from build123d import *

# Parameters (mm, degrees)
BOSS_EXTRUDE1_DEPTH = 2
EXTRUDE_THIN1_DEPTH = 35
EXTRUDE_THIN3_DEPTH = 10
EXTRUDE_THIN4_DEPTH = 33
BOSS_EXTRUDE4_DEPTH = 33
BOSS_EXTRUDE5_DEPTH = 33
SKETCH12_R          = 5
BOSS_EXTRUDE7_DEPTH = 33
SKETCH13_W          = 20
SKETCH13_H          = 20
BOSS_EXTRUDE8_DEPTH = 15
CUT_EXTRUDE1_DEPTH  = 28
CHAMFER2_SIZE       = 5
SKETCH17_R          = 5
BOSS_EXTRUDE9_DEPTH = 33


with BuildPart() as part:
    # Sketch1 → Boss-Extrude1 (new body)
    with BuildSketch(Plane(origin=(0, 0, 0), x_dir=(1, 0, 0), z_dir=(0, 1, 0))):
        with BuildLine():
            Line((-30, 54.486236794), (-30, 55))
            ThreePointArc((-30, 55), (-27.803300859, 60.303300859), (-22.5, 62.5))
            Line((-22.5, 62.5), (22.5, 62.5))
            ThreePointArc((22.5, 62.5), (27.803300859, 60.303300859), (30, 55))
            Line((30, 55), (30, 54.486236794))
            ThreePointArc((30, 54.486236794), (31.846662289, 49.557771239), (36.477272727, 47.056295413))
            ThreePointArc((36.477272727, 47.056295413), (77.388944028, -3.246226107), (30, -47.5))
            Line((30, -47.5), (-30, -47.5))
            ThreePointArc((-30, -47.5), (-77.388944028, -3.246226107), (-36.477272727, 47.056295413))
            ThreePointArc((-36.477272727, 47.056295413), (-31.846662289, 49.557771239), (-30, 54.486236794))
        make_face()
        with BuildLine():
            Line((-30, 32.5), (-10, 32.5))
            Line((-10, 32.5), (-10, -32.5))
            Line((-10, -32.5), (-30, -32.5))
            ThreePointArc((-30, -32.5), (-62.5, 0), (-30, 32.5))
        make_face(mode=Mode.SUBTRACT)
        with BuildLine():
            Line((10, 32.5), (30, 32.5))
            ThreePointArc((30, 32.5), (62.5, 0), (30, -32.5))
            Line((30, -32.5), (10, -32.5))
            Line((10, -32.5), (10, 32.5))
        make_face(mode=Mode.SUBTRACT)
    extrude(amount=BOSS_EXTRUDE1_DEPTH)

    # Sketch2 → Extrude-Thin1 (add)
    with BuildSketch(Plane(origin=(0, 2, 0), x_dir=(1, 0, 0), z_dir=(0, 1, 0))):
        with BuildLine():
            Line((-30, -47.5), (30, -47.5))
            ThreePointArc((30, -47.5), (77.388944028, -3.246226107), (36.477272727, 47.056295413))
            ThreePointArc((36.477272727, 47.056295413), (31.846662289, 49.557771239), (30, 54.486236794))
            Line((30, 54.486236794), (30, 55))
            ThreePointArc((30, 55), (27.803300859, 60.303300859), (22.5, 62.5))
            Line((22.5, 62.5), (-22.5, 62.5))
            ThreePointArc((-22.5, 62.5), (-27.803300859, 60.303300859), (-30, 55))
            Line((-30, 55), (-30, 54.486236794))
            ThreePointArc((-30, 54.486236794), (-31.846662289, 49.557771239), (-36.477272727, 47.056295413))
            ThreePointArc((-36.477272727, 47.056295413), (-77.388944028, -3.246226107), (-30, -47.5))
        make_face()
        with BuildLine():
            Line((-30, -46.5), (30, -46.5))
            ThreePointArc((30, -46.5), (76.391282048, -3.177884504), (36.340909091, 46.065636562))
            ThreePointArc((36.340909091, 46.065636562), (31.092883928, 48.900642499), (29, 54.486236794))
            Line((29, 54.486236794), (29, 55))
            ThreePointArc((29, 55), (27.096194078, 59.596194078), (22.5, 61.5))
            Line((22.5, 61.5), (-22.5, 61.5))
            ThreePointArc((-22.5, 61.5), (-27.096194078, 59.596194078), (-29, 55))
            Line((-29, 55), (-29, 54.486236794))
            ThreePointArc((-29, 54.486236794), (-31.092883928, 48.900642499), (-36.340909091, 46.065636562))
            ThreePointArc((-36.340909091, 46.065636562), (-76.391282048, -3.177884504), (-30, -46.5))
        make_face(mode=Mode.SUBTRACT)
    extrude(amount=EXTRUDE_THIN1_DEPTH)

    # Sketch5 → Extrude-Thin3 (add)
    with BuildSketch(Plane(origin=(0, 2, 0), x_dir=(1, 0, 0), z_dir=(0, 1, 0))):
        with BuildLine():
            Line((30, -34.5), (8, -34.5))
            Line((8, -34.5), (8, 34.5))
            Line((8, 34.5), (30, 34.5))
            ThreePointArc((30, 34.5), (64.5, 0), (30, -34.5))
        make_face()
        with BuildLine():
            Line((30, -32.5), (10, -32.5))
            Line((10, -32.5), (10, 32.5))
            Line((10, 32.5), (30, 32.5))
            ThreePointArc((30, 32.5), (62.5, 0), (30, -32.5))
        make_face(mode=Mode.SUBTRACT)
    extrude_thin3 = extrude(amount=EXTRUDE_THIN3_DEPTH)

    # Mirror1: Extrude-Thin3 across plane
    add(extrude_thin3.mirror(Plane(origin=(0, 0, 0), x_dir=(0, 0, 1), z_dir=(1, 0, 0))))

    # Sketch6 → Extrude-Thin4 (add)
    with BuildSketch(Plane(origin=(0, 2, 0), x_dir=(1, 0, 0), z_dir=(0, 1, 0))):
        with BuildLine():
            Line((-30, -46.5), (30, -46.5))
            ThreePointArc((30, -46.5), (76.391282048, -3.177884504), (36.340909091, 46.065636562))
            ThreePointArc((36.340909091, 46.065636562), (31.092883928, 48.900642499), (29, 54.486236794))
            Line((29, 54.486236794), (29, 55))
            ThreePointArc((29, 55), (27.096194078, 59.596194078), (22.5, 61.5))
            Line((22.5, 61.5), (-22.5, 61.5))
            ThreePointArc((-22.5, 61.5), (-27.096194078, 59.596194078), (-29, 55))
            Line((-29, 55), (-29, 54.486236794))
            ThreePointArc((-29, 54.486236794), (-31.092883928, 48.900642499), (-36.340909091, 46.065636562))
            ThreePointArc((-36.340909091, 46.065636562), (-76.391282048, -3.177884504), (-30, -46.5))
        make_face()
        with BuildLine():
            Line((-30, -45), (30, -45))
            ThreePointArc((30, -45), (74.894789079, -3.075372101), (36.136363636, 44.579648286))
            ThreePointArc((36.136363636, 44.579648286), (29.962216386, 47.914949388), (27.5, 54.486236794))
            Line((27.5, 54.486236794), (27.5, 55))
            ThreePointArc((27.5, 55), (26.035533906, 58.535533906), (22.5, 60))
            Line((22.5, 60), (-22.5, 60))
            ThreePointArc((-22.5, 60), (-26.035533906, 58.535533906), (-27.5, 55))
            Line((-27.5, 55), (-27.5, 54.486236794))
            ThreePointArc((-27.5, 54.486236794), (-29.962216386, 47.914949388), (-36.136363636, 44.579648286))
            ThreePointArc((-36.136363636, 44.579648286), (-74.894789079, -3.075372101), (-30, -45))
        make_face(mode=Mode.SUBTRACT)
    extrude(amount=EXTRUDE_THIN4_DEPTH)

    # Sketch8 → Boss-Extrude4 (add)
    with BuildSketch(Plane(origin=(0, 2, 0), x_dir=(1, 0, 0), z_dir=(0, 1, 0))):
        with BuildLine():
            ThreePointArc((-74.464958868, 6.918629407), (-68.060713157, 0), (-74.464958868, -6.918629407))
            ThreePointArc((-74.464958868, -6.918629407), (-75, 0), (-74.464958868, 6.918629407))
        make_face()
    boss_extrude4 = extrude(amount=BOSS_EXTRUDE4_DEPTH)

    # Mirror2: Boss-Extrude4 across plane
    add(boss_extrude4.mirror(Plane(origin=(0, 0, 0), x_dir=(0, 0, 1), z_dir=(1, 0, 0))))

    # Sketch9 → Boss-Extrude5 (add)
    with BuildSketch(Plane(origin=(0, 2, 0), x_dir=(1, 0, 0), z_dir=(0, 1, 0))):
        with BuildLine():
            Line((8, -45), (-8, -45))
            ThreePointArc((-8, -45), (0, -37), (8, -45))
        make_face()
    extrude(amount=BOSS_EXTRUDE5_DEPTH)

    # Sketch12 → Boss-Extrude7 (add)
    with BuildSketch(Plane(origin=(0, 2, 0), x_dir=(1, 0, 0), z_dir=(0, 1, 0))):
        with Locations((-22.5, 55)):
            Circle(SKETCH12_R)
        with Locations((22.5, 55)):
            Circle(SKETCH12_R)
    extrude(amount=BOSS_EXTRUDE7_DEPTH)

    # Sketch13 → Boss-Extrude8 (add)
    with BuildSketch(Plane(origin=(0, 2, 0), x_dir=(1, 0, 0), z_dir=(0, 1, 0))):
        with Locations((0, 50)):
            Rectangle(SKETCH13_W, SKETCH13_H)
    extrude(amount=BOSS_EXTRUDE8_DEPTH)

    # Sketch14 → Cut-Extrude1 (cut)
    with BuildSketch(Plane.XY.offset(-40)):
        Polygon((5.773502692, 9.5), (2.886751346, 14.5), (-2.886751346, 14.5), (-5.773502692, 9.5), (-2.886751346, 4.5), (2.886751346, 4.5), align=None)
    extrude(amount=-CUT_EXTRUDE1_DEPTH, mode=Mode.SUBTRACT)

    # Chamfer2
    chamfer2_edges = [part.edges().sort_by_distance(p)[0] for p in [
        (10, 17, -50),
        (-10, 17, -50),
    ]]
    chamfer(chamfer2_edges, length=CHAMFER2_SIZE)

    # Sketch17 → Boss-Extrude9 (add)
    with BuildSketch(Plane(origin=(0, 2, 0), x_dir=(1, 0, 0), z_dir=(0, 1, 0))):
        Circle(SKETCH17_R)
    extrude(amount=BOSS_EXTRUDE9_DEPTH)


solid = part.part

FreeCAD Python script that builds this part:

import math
import FreeCAD as App
import Part
import Sketcher

V = App.Vector
Q = App.Units.Quantity


def edges_at(feature, points):
    """Names of the edges that pass closest to the given points."""
    edges = feature.Shape.Edges
    near = lambda p: min(range(len(edges)), key=lambda i: edges[i].distToShape(Part.Vertex(*p))[0])
    return sorted({f"Edge{near(p) + 1}" for p in points})

doc = App.newDocument("Part")
params = doc.addObject("Spreadsheet::Sheet", "Params")
for row, (alias, value) in enumerate([
    ("sketch1_radius", "7.5 mm"),
    ("sketch1_radius2", "47.5 mm"),
    ("sketch1_radius3", "32.5 mm"),
    ("sketch1_width", "60 mm"),
    ("sketch1_width2", "20 mm"),
    ("pad1_length", "2 mm"),
    ("sketch2_radius", "47.5 mm"),
    ("sketch2_radius2", "7.5 mm"),
    ("sketch2_radius3", "46.5 mm"),
    ("sketch2_width", "60 mm"),
    ("pad2_length", "35 mm"),
    ("sketch3_radius", "34.5 mm"),
    ("sketch3_radius2", "32.5 mm"),
    ("sketch3_width", "22 mm"),
    ("sketch3_width2", "20 mm"),
    ("pad3_length", "10 mm"),
    ("sketch4_radius", "45 mm"),
    ("sketch4_radius2", "10 mm"),
    ("sketch4_radius3", "5 mm"),
    ("sketch4_radius4", "46.5 mm"),
    ("sketch4_width", "60 mm"),
    ("pad4_length", "33 mm"),
    ("sketch5_radius", "45 mm"),
    ("pad5_length", "33 mm"),
    ("sketch6_radius", "8 mm"),
    ("pad6_length", "33 mm"),
    ("sketch7_diameter", "10 mm"),
    ("pad7_length", "33 mm"),
    ("sketch8_width", "20 mm"),
    ("pad8_length", "15 mm"),
    ("pocket1_length", "28 mm"),
    ("chamfer_size", "5 mm"),
    ("sketch10_diameter", "10 mm"),
    ("pad9_length", "33 mm"),
], start=1):
    params.set(f"A{row}", alias)
    params.set(f"B{row}", "=" + value)
    params.setAlias(f"B{row}", alias)

body = doc.addObject("PartDesign::Body", "Body")

# Sketch on XZ plane
sketch1 = doc.addObject("Sketcher::SketchObject", "Sketch")
body.addObject(sketch1)
sketch1.AttachmentSupport = (doc.XZ_Plane, [""])
sketch1.MapMode = "FlatFace"
sketch1.addGeometry([
    Part.LineSegment(V(-30, -55, 0), V(-30, -54.5, 0)),  # 0
    Part.ArcOfCircle(Part.Circle(V(-37.5, -54.5, 0), V(0, 0, 1), 7.5), math.radians(0), math.radians(82)),  # 1
    Part.ArcOfCircle(Part.Circle(V(-30, 0, 0), V(0, 0, 1), 47.5), math.radians(90), math.radians(262)),  # 2
    Part.LineSegment(V(-30, 47.5, 0), V(30, 47.5, 0)),  # 3
    Part.ArcOfCircle(Part.Circle(V(30, 0, 0), V(0, 0, 1), 47.5), math.radians(-82), math.radians(90)),  # 4
    Part.ArcOfCircle(Part.Circle(V(37.5, -54.5, 0), V(0, 0, 1), 7.5), math.radians(98), math.radians(180)),  # 5
    Part.LineSegment(V(30, -54.5, 0), V(30, -55, 0)),  # 6
    Part.ArcOfCircle(Part.Circle(V(22.5, -55, 0), V(0, 0, 1), 7.5), math.radians(-90), math.radians(0)),  # 7
    Part.LineSegment(V(22.5, -62.5, 0), V(-22.5, -62.5, 0)),  # 8
    Part.ArcOfCircle(Part.Circle(V(-22.5, -55, 0), V(0, 0, 1), 7.5), math.radians(180), math.radians(270)),  # 9
    Part.LineSegment(V(10, -32.5, 0), V(30, -32.5, 0)),  # 10
    Part.ArcOfCircle(Part.Circle(V(30, 0, 0), V(0, 0, 1), 32.5), math.radians(-90), math.radians(90)),  # 11
    Part.LineSegment(V(30, 32.5, 0), V(10, 32.5, 0)),  # 12
    Part.LineSegment(V(10, 32.5, 0), V(10, -32.5, 0)),  # 13
    Part.LineSegment(V(-30, -32.5, 0), V(-10, -32.5, 0)),  # 14
    Part.LineSegment(V(-10, -32.5, 0), V(-10, 32.5, 0)),  # 15
    Part.LineSegment(V(-10, 32.5, 0), V(-30, 32.5, 0)),  # 16
    Part.ArcOfCircle(Part.Circle(V(-30, 0, 0), V(0, 0, 1), 32.5), math.radians(90), math.radians(270)),  # 17
], False)
sketch1.addConstraint([
    Sketcher.Constraint("Tangent", 0, 2, 1, 1),
    Sketcher.Constraint("Tangent", 1, 2, 2, 2),
    Sketcher.Constraint("Tangent", 2, 1, 3, 1),
    Sketcher.Constraint("Tangent", 3, 2, 4, 2),
    Sketcher.Constraint("Tangent", 4, 1, 5, 1),
    Sketcher.Constraint("Tangent", 5, 2, 6, 1),
    Sketcher.Constraint("Tangent", 6, 2, 7, 2),
    Sketcher.Constraint("Tangent", 7, 1, 8, 1),
    Sketcher.Constraint("Tangent", 8, 2, 9, 2),
    Sketcher.Constraint("Tangent", 9, 1, 0, 1),
    Sketcher.Constraint("Tangent", 10, 2, 11, 1),
    Sketcher.Constraint("Tangent", 11, 2, 12, 1),
    Sketcher.Constraint("Coincident", 12, 2, 13, 1),
    Sketcher.Constraint("Coincident", 13, 2, 10, 1),
    Sketcher.Constraint("Coincident", 14, 2, 15, 1),
    Sketcher.Constraint("Coincident", 15, 2, 16, 1),
    Sketcher.Constraint("Tangent", 16, 2, 17, 1),
    Sketcher.Constraint("Tangent", 17, 2, 14, 1),
    Sketcher.Constraint("Vertical", 0),
    Sketcher.Constraint("Horizontal", 3),
    Sketcher.Constraint("Vertical", 6),
    Sketcher.Constraint("Horizontal", 8),
    Sketcher.Constraint("Horizontal", 10),
    Sketcher.Constraint("Horizontal", 12),
    Sketcher.Constraint("Vertical", 13),
    Sketcher.Constraint("Horizontal", 14),
    Sketcher.Constraint("Vertical", 15),
    Sketcher.Constraint("Horizontal", 16),
    Sketcher.Constraint("Coincident", 11, 3, 4, 3),
    Sketcher.Constraint("Coincident", 17, 3, 2, 3),
    Sketcher.Constraint("Equal", 2, 4),
    Sketcher.Constraint("Equal", 1, 5),
    Sketcher.Constraint("Equal", 5, 7),
    Sketcher.Constraint("Equal", 7, 9),
    Sketcher.Constraint("Equal", 11, 17),
    Sketcher.Constraint("Symmetric", 2, 3, 4, 3, -1, 1),
    Sketcher.Constraint("Horizontal", 1, 3, 5, 3),
    Sketcher.Constraint("Vertical", 17, 3, 0, 2),
    Sketcher.Constraint("Equal", 12, 14),
    Sketcher.Constraint("Radius", 1, 7.5),
    Sketcher.Constraint("Radius", 2, 47.5),
    Sketcher.Constraint("Radius", 11, 32.5),
    Sketcher.Constraint("DistanceX", 3, 1, 3, 2, 60.0),
    Sketcher.Constraint("DistanceX", 10, 1, 10, 2, 20.0),
    Sketcher.Constraint("DistanceY", 7, 3, -1, 1, 55.0),
])
sketch1.setExpression("Constraints[39]", "Params.sketch1_radius")
sketch1.setExpression("Constraints[40]", "Params.sketch1_radius2")
sketch1.setExpression("Constraints[41]", "Params.sketch1_radius3")
sketch1.setExpression("Constraints[42]", "Params.sketch1_width")
sketch1.setExpression("Constraints[43]", "Params.sketch1_width2")
pad1 = doc.addObject("PartDesign::Pad", "Pad")
body.addObject(pad1)
pad1.Profile = sketch1
pad1.setExpression("Length", "Params.pad1_length")
pad1.Reversed = True

# Sketch on XZ plane
sketch2 = doc.addObject("Sketcher::SketchObject", "Sketch001")
body.addObject(sketch2)
sketch2.AttachmentSupport = (doc.XZ_Plane, [""])
sketch2.MapMode = "FlatFace"
sketch2.AttachmentOffset = App.Placement(V(0, 0, -2), App.Rotation())
sketch2.addGeometry([
    Part.LineSegment(V(-30, 47.5, 0), V(30, 47.5, 0)),  # 0
    Part.ArcOfCircle(Part.Circle(V(30, 0, 0), V(0, 0, 1), 47.5), math.radians(-82), math.radians(90)),  # 1
    Part.ArcOfCircle(Part.Circle(V(37.5, -54.5, 0), V(0, 0, 1), 7.5), math.radians(98), math.radians(180)),  # 2
    Part.LineSegment(V(30, -54.5, 0), V(30, -55, 0)),  # 3
    Part.ArcOfCircle(Part.Circle(V(22.5, -55, 0), V(0, 0, 1), 7.5), math.radians(-90), math.radians(0)),  # 4
    Part.LineSegment(V(22.5, -62.5, 0), V(-22.5, -62.5, 0)),  # 5
    Part.ArcOfCircle(Part.Circle(V(-22.5, -55, 0), V(0, 0, 1), 7.5), math.radians(180), math.radians(270)),  # 6
    Part.LineSegment(V(-30, -55, 0), V(-30, -54.5, 0)),  # 7
    Part.ArcOfCircle(Part.Circle(V(-37.5, -54.5, 0), V(0, 0, 1), 7.5), math.radians(0), math.radians(82)),  # 8
    Part.ArcOfCircle(Part.Circle(V(-30, 0, 0), V(0, 0, 1), 47.5), math.radians(90), math.radians(262)),  # 9
    Part.LineSegment(V(30, 46.5, 0), V(-30, 46.5, 0)),  # 10
    Part.ArcOfCircle(Part.Circle(V(-30, 0, 0), V(0, 0, 1), 46.5), math.radians(90), math.radians(262)),  # 11
    Part.ArcOfCircle(Part.Circle(V(-37.5, -54.5, 0), V(0, 0, 1), 8.5), math.radians(0), math.radians(82)),  # 12
    Part.LineSegment(V(-29, -54.5, 0), V(-29, -55, 0)),  # 13
    Part.ArcOfCircle(Part.Circle(V(-22.5, -55, 0), V(0, 0, 1), 6.5), math.radians(180), math.radians(270)),  # 14
    Part.LineSegment(V(-22.5, -61.5, 0), V(22.5, -61.5, 0)),  # 15
    Part.ArcOfCircle(Part.Circle(V(22.5, -55, 0), V(0, 0, 1), 6.5), math.radians(-90), math.radians(0)),  # 16
    Part.LineSegment(V(29, -55, 0), V(29, -54.5, 0)),  # 17
    Part.ArcOfCircle(Part.Circle(V(37.5, -54.5, 0), V(0, 0, 1), 8.5), math.radians(98), math.radians(180)),  # 18
    Part.ArcOfCircle(Part.Circle(V(30, 0, 0), V(0, 0, 1), 46.5), math.radians(-82), math.radians(90)),  # 19
], False)
sketch2.addConstraint([
    Sketcher.Constraint("Tangent", 0, 2, 1, 2),
    Sketcher.Constraint("Tangent", 1, 1, 2, 1),
    Sketcher.Constraint("Tangent", 2, 2, 3, 1),
    Sketcher.Constraint("Tangent", 3, 2, 4, 2),
    Sketcher.Constraint("Tangent", 4, 1, 5, 1),
    Sketcher.Constraint("Tangent", 5, 2, 6, 2),
    Sketcher.Constraint("Tangent", 6, 1, 7, 1),
    Sketcher.Constraint("Tangent", 7, 2, 8, 1),
    Sketcher.Constraint("Tangent", 8, 2, 9, 2),
    Sketcher.Constraint("Tangent", 9, 1, 0, 1),
    Sketcher.Constraint("Tangent", 10, 2, 11, 1),
    Sketcher.Constraint("Tangent", 11, 2, 12, 2),
    Sketcher.Constraint("Tangent", 12, 1, 13, 1),
    Sketcher.Constraint("Tangent", 13, 2, 14, 1),
    Sketcher.Constraint("Tangent", 14, 2, 15, 1),
    Sketcher.Constraint("Tangent", 15, 2, 16, 1),
    Sketcher.Constraint("Tangent", 16, 2, 17, 1),
    Sketcher.Constraint("Tangent", 17, 2, 18, 2),
    Sketcher.Constraint("Tangent", 18, 1, 19, 1),
    Sketcher.Constraint("Tangent", 19, 2, 10, 1),
    Sketcher.Constraint("Horizontal", 0),
    Sketcher.Constraint("Vertical", 3),
    Sketcher.Constraint("Horizontal", 5),
    Sketcher.Constraint("Vertical", 7),
    Sketcher.Constraint("Horizontal", 10),
    Sketcher.Constraint("Vertical", 13),
    Sketcher.Constraint("Horizontal", 15),
    Sketcher.Constraint("Vertical", 17),
    Sketcher.Constraint("Coincident", 11, 3, 9, 3),
    Sketcher.Constraint("Coincident", 12, 3, 8, 3),
    Sketcher.Constraint("Coincident", 14, 3, 6, 3),
    Sketcher.Constraint("Coincident", 16, 3, 4, 3),
    Sketcher.Constraint("Coincident", 18, 3, 2, 3),
    Sketcher.Constraint("Equal", 2, 4),
    Sketcher.Constraint("Equal", 4, 6),
    Sketcher.Constraint("Equal", 6, 8),
    Sketcher.Constraint("Equal", 1, 9),
    Sketcher.Constraint("Equal", 11, 19),
    Sketcher.Constraint("Symmetric", 1, 3, 9, 3, -1, 1),
    Sketcher.Constraint("Horizontal", 2, 3, 8, 3),
    Sketcher.Constraint("Vertical", 0, 2, 2, 2),
    Sketcher.Constraint("Radius", 1, 47.5),
    Sketcher.Constraint("Radius", 2, 7.5),
    Sketcher.Constraint("Radius", 11, 46.5),
    Sketcher.Constraint("DistanceX", 0, 1, 0, 2, 60.0),
    Sketcher.Constraint("DistanceY", 4, 3, -1, 1, 55.0),
])
sketch2.setExpression("Constraints[41]", "Params.sketch2_radius")
sketch2.setExpression("Constraints[42]", "Params.sketch2_radius2")
sketch2.setExpression("Constraints[43]", "Params.sketch2_radius3")
sketch2.setExpression("Constraints[44]", "Params.sketch2_width")
pad2 = doc.addObject("PartDesign::Pad", "Pad001")
body.addObject(pad2)
pad2.Profile = sketch2
pad2.setExpression("Length", "Params.pad2_length")
pad2.Reversed = True

# Sketch on XZ plane
sketch3 = doc.addObject("Sketcher::SketchObject", "Sketch002")
body.addObject(sketch3)
sketch3.AttachmentSupport = (doc.XZ_Plane, [""])
sketch3.MapMode = "FlatFace"
sketch3.AttachmentOffset = App.Placement(V(0, 0, -2), App.Rotation())
sketch3.addGeometry([
    Part.LineSegment(V(8, 34, 0), V(30, 34, 0)),  # 0
    Part.ArcOfCircle(Part.Circle(V(30, 0, 0), V(0, 0, 1), 34), math.radians(-90), math.radians(90)),  # 1
    Part.LineSegment(V(30, -34, 0), V(8, -34, 0)),  # 2
    Part.LineSegment(V(8, -34, 0), V(8, 34, 0)),  # 3
    Part.LineSegment(V(30, 32, 0), V(10, 32, 0)),  # 4
    Part.LineSegment(V(10, 32, 0), V(10, -32, 0)),  # 5
    Part.LineSegment(V(10, -32, 0), V(30, -32, 0)),  # 6
    Part.ArcOfCircle(Part.Circle(V(30, 0, 0), V(0, 0, 1), 32), math.radians(-90), math.radians(90)),  # 7
], False)
sketch3.addConstraint([
    Sketcher.Constraint("Tangent", 0, 2, 1, 2),
    Sketcher.Constraint("Tangent", 1, 1, 2, 1),
    Sketcher.Constraint("Coincident", 2, 2, 3, 1),
    Sketcher.Constraint("Coincident", 3, 2, 0, 1),
    Sketcher.Constraint("Coincident", 4, 2, 5, 1),
    Sketcher.Constraint("Coincident", 5, 2, 6, 1),
    Sketcher.Constraint("Tangent", 6, 2, 7, 1),
    Sketcher.Constraint("Tangent", 7, 2, 4, 1),
    Sketcher.Constraint("Horizontal", 0),
    Sketcher.Constraint("Horizontal", 2),
    Sketcher.Constraint("Vertical", 3),
    Sketcher.Constraint("Horizontal", 4),
    Sketcher.Constraint("Vertical", 5),
    Sketcher.Constraint("Horizontal", 6),
    Sketcher.Constraint("Coincident", 7, 3, 1, 3),
    Sketcher.Constraint("PointOnObject", 1, 3, -1),
    Sketcher.Constraint("Radius", 1, 34.5),
    Sketcher.Constraint("Radius", 7, 32.5),
    Sketcher.Constraint("DistanceX", 0, 1, 0, 2, 22.0),
    Sketcher.Constraint("DistanceX", 4, 2, 4, 1, 20.0),
    Sketcher.Constraint("DistanceX", -1, 1, 1, 3, 30.0),
])
sketch3.setExpression("Constraints[16]", "Params.sketch3_radius")
sketch3.setExpression("Constraints[17]", "Params.sketch3_radius2")
sketch3.setExpression("Constraints[18]", "Params.sketch3_width")
sketch3.setExpression("Constraints[19]", "Params.sketch3_width2")
pad3 = doc.addObject("PartDesign::Pad", "Pad002")
body.addObject(pad3)
pad3.Profile = sketch3
pad3.setExpression("Length", "Params.pad3_length")
pad3.Reversed = True
doc.recompute()

mirrored = doc.addObject("PartDesign::Mirrored", "Mirrored")
body.addObject(mirrored)
mirrored.Originals = [pad3]
mirrored.MirrorPlane = (doc.YZ_Plane, [""])
body.Tip = mirrored

# Sketch on XZ plane
sketch4 = doc.addObject("Sketcher::SketchObject", "Sketch003")
body.addObject(sketch4)
sketch4.AttachmentSupport = (doc.XZ_Plane, [""])
sketch4.MapMode = "FlatFace"
sketch4.AttachmentOffset = App.Placement(V(0, 0, -2), App.Rotation())
sketch4.addGeometry([
    Part.LineSegment(V(-30, 46.5, 0), V(30, 46.5, 0)),  # 0
    Part.ArcOfCircle(Part.Circle(V(30, 0, 0), V(0, 0, 1), 46.5), math.radians(-82), math.radians(90)),  # 1
    Part.ArcOfCircle(Part.Circle(V(37.5, -54.5, 0), V(0, 0, 1), 8.5), math.radians(98), math.radians(180)),  # 2
    Part.LineSegment(V(29, -54.5, 0), V(29, -55, 0)),  # 3
    Part.ArcOfCircle(Part.Circle(V(22.5, -55, 0), V(0, 0, 1), 6.5), math.radians(-90), math.radians(0)),  # 4
    Part.LineSegment(V(22.5, -61.5, 0), V(-22.5, -61.5, 0)),  # 5
    Part.ArcOfCircle(Part.Circle(V(-22.5, -55, 0), V(0, 0, 1), 6.5), math.radians(180), math.radians(270)),  # 6
    Part.LineSegment(V(-29, -55, 0), V(-29, -54.5, 0)),  # 7
    Part.ArcOfCircle(Part.Circle(V(-37.5, -54.5, 0), V(0, 0, 1), 8.5), math.radians(0), math.radians(82)),  # 8
    Part.ArcOfCircle(Part.Circle(V(-30, 0, 0), V(0, 0, 1), 46.5), math.radians(90), math.radians(262)),  # 9
    Part.LineSegment(V(30, 45, 0), V(-30, 45, 0)),  # 10
    Part.ArcOfCircle(Part.Circle(V(-30, 0, 0), V(0, 0, 1), 45), math.radians(90), math.radians(262)),  # 11
    Part.ArcOfCircle(Part.Circle(V(-37.5, -54.5, 0), V(0, 0, 1), 10), math.radians(0), math.radians(82)),  # 12
    Part.LineSegment(V(-27.5, -54.5, 0), V(-27.5, -55, 0)),  # 13
    Part.ArcOfCircle(Part.Circle(V(-22.5, -55, 0), V(0, 0, 1), 5), math.radians(180), math.radians(270)),  # 14
    Part.LineSegment(V(-22.5, -60, 0), V(22.5, -60, 0)),  # 15
    Part.ArcOfCircle(Part.Circle(V(22.5, -55, 0), V(0, 0, 1), 5), math.radians(-90), math.radians(0)),  # 16
    Part.LineSegment(V(27.5, -55, 0), V(27.5, -54.5, 0)),  # 17
    Part.ArcOfCircle(Part.Circle(V(37.5, -54.5, 0), V(0, 0, 1), 10), math.radians(98), math.radians(180)),  # 18
    Part.ArcOfCircle(Part.Circle(V(30, 0, 0), V(0, 0, 1), 45), math.radians(-82), math.radians(90)),  # 19
], False)
sketch4.addConstraint([
    Sketcher.Constraint("Tangent", 0, 2, 1, 2),
    Sketcher.Constraint("Tangent", 1, 1, 2, 1),
    Sketcher.Constraint("Tangent", 2, 2, 3, 1),
    Sketcher.Constraint("Tangent", 3, 2, 4, 2),
    Sketcher.Constraint("Tangent", 4, 1, 5, 1),
    Sketcher.Constraint("Tangent", 5, 2, 6, 2),
    Sketcher.Constraint("Tangent", 6, 1, 7, 1),
    Sketcher.Constraint("Tangent", 7, 2, 8, 1),
    Sketcher.Constraint("Tangent", 8, 2, 9, 2),
    Sketcher.Constraint("Tangent", 9, 1, 0, 1),
    Sketcher.Constraint("Tangent", 10, 2, 11, 1),
    Sketcher.Constraint("Tangent", 11, 2, 12, 2),
    Sketcher.Constraint("Tangent", 12, 1, 13, 1),
    Sketcher.Constraint("Tangent", 13, 2, 14, 1),
    Sketcher.Constraint("Tangent", 14, 2, 15, 1),
    Sketcher.Constraint("Tangent", 15, 2, 16, 1),
    Sketcher.Constraint("Tangent", 16, 2, 17, 1),
    Sketcher.Constraint("Tangent", 17, 2, 18, 2),
    Sketcher.Constraint("Tangent", 18, 1, 19, 1),
    Sketcher.Constraint("Tangent", 19, 2, 10, 1),
    Sketcher.Constraint("Horizontal", 0),
    Sketcher.Constraint("Vertical", 3),
    Sketcher.Constraint("Horizontal", 5),
    Sketcher.Constraint("Vertical", 7),
    Sketcher.Constraint("Horizontal", 10),
    Sketcher.Constraint("Vertical", 13),
    Sketcher.Constraint("Horizontal", 15),
    Sketcher.Constraint("Vertical", 17),
    Sketcher.Constraint("Coincident", 11, 3, 9, 3),
    Sketcher.Constraint("Coincident", 12, 3, 8, 3),
    Sketcher.Constraint("Coincident", 14, 3, 6, 3),
    Sketcher.Constraint("Coincident", 16, 3, 4, 3),
    Sketcher.Constraint("Coincident", 18, 3, 2, 3),
    Sketcher.Constraint("Equal", 4, 6),
    Sketcher.Constraint("Equal", 2, 8),
    Sketcher.Constraint("Equal", 1, 9),
    Sketcher.Constraint("Equal", 11, 19),
    Sketcher.Constraint("Symmetric", 1, 3, 9, 3, -1, 1),
    Sketcher.Constraint("Horizontal", 2, 3, 8, 3),
    Sketcher.Constraint("Radius", 11, 45.0),
    Sketcher.Constraint("Radius", 12, 10.0),
    Sketcher.Constraint("Radius", 14, 5.0),
    Sketcher.Constraint("Radius", 1, 46.5),
    Sketcher.Constraint("DistanceX", 0, 1, 0, 2, 60.0),
    Sketcher.Constraint("DistanceX", 5, 2, 5, 1, 45.0),
    Sketcher.Constraint("DistanceY", 4, 3, -1, 1, 55.0),
])
sketch4.setExpression("Constraints[39]", "Params.sketch4_radius")
sketch4.setExpression("Constraints[40]", "Params.sketch4_radius2")
sketch4.setExpression("Constraints[41]", "Params.sketch4_radius3")
sketch4.setExpression("Constraints[42]", "Params.sketch4_radius4")
sketch4.setExpression("Constraints[43]", "Params.sketch4_width")
pad4 = doc.addObject("PartDesign::Pad", "Pad003")
body.addObject(pad4)
pad4.Profile = sketch4
pad4.setExpression("Length", "Params.pad4_length")
pad4.Reversed = True

# Sketch on XZ plane
sketch5 = doc.addObject("Sketcher::SketchObject", "Sketch004")
body.addObject(sketch5)
sketch5.AttachmentSupport = (doc.XZ_Plane, [""])
sketch5.MapMode = "FlatFace"
sketch5.AttachmentOffset = App.Placement(V(0, 0, -2), App.Rotation())
sketch5.addGeometry([
    Part.ArcOfCircle(Part.Circle(V(-75, 0, 0), V(0, 0, 1), 7), math.radians(-86), math.radians(86)),
    Part.ArcOfCircle(Part.Circle(V(-30, 0, 0), V(0, 0, 1), 45), math.radians(171.16), math.radians(188.84)),
], False)
sketch5.addConstraint([
    Sketcher.Constraint("Coincident", 0, 1, 1, 2),
    Sketcher.Constraint("Coincident", 1, 1, 0, 2),
    Sketcher.Constraint("Symmetric", 0, 1, 1, 1, -1),
    Sketcher.Constraint("Radius", 1, 45.0),
    Sketcher.Constraint("DistanceX", 0, 3, -1, 1, 75.0),
    Sketcher.Constraint("DistanceX", 1, 3, -1, 1, 30.0),
    Sketcher.Constraint("Radius", 0, 6.939287),
])
sketch5.setExpression("Constraints[3]", "Params.sketch5_radius")
pad5 = doc.addObject("PartDesign::Pad", "Pad004")
body.addObject(pad5)
pad5.Profile = sketch5
pad5.setExpression("Length", "Params.pad5_length")
pad5.Reversed = True
doc.recompute()

mirrored2 = doc.addObject("PartDesign::Mirrored", "Mirrored001")
body.addObject(mirrored2)
mirrored2.Originals = [pad5]
mirrored2.MirrorPlane = (doc.YZ_Plane, [""])
body.Tip = mirrored2

# Sketch on XZ plane
sketch6 = doc.addObject("Sketcher::SketchObject", "Sketch005")
body.addObject(sketch6)
sketch6.AttachmentSupport = (doc.XZ_Plane, [""])
sketch6.MapMode = "FlatFace"
sketch6.AttachmentOffset = App.Placement(V(0, 0, -2), App.Rotation())
sketch6.addGeometry([
    Part.LineSegment(V(-8, 45, 0), V(8, 45, 0)),
    Part.ArcOfCircle(Part.Circle(V(0, 45, 0), V(0, 0, 1), 8), math.radians(180), math.radians(360)),
], False)
sketch6.addConstraint([
    Sketcher.Constraint("Coincident", 0, 1, 1, 1),
    Sketcher.Constraint("Coincident", 1, 2, 0, 2),
    Sketcher.Constraint("Horizontal", 0),
    Sketcher.Constraint("PointOnObject", 1, 3, -2),
    Sketcher.Constraint("Horizontal", 1, 3, 0, 1),
    Sketcher.Constraint("Radius", 1, 8.0),
    Sketcher.Constraint("DistanceY", -1, 1, 1, 3, 45.0),
])
sketch6.setExpression("Constraints[5]", "Params.sketch6_radius")
pad6 = doc.addObject("PartDesign::Pad", "Pad005")
body.addObject(pad6)
pad6.Profile = sketch6
pad6.setExpression("Length", "Params.pad6_length")
pad6.Reversed = True

# Sketch on XZ plane
sketch7 = doc.addObject("Sketcher::SketchObject", "Sketch006")
body.addObject(sketch7)
sketch7.AttachmentSupport = (doc.XZ_Plane, [""])
sketch7.MapMode = "FlatFace"
sketch7.AttachmentOffset = App.Placement(V(0, 0, -2), App.Rotation())
sketch7.addGeometry([
    Part.Circle(V(-22, -55, 0), V(0, 0, 1), 5),
    Part.Circle(V(22, -55, 0), V(0, 0, 1), 5),
], False)
sketch7.addConstraint([
    Sketcher.Constraint("Equal", 0, 1),
    Sketcher.Constraint("Symmetric", 0, 3, 1, 3, -2),
    Sketcher.Constraint("Diameter", 0, 10.0),
    Sketcher.Constraint("DistanceY", 0, 3, -1, 1, 55.0),
    Sketcher.Constraint("DistanceX", 0, 3, 1, 3, 45.0),
])
sketch7.setExpression("Constraints[2]", "Params.sketch7_diameter")
pad7 = doc.addObject("PartDesign::Pad", "Pad006")
body.addObject(pad7)
pad7.Profile = sketch7
pad7.setExpression("Length", "Params.pad7_length")
pad7.Reversed = True

# Sketch on XZ plane
sketch8 = doc.addObject("Sketcher::SketchObject", "Sketch007")
body.addObject(sketch8)
sketch8.AttachmentSupport = (doc.XZ_Plane, [""])
sketch8.MapMode = "FlatFace"
sketch8.AttachmentOffset = App.Placement(V(0, 0, -2), App.Rotation())
sketch8.addGeometry([
    Part.LineSegment(V(-10, -60, 0), V(-10, -40, 0)),
    Part.LineSegment(V(-10, -40, 0), V(10, -40, 0)),
    Part.LineSegment(V(10, -40, 0), V(10, -60, 0)),
    Part.LineSegment(V(10, -60, 0), V(-10, -60, 0)),
], False)
sketch8.addConstraint([
    Sketcher.Constraint("Coincident", 0, 2, 1, 1),
    Sketcher.Constraint("Coincident", 1, 2, 2, 1),
    Sketcher.Constraint("Coincident", 2, 2, 3, 1),
    Sketcher.Constraint("Coincident", 3, 2, 0, 1),
    Sketcher.Constraint("Vertical", 0),
    Sketcher.Constraint("Horizontal", 1),
    Sketcher.Constraint("Vertical", 2),
    Sketcher.Constraint("Horizontal", 3),
    Sketcher.Constraint("Equal", 3, 0),
    Sketcher.Constraint("DistanceX", 1, 1, 1, 2, 20.0),
    Sketcher.Constraint("DistanceX", 0, 2, -1, 1, 10.0),
    Sketcher.Constraint("DistanceY", 0, 2, -1, 1, 40.0),
])
sketch8.setExpression("Constraints[9]", "Params.sketch8_width")
pad8 = doc.addObject("PartDesign::Pad", "Pad007")
body.addObject(pad8)
pad8.Profile = sketch8
pad8.setExpression("Length", "Params.pad8_length")
pad8.Reversed = True

# Sketch on XY plane
sketch9 = doc.addObject("Sketcher::SketchObject", "Sketch008")
body.addObject(sketch9)
sketch9.AttachmentSupport = (doc.XY_Plane, [""])
sketch9.MapMode = "FlatFace"
sketch9.AttachmentOffset = App.Placement(V(0, 0, -40), App.Rotation())
sketch9.addGeometry([
    Part.LineSegment(V(6, 10, 0), V(3, 14, 0)),  # 0
    Part.LineSegment(V(3, 14, 0), V(-3, 14, 0)),  # 1
    Part.LineSegment(V(-3, 14, 0), V(-6, 10, 0)),  # 2
    Part.LineSegment(V(-6, 10, 0), V(-3, 4, 0)),  # 3
    Part.LineSegment(V(-3, 4, 0), V(3, 4, 0)),  # 4
    Part.LineSegment(V(3, 4, 0), V(6, 10, 0)),  # 5
], False)
sketch9.addConstraint([
    Sketcher.Constraint("Coincident", 0, 2, 1, 1),
    Sketcher.Constraint("Coincident", 1, 2, 2, 1),
    Sketcher.Constraint("Coincident", 2, 2, 3, 1),
    Sketcher.Constraint("Coincident", 3, 2, 4, 1),
    Sketcher.Constraint("Coincident", 4, 2, 5, 1),
    Sketcher.Constraint("Coincident", 5, 2, 0, 1),
    Sketcher.Constraint("Horizontal", 1),
    Sketcher.Constraint("Horizontal", 4),
    Sketcher.Constraint("Symmetric", 2, 2, 5, 2, -2),
    Sketcher.Constraint("Parallel", 0, 3),
    Sketcher.Constraint("Parallel", 2, 5),
    Sketcher.Constraint("Vertical", 1, 2, 3, 2),
    Sketcher.Constraint("Vertical", 0, 2, 4, 2),
    Sketcher.Constraint("Angle", 0, Q("120 deg")),
    Sketcher.Constraint("DistanceY", 2, 2, 1, 2, 5.0),
    Sketcher.Constraint("DistanceY", -1, 1, 0, 2, 14.5),
    Sketcher.Constraint("DistanceX", 1, 2, 1, 1, 5.773503),
])
pocket1 = doc.addObject("PartDesign::Pocket", "Pocket")
body.addObject(pocket1)
pocket1.Profile = sketch9
pocket1.setExpression("Length", "Params.pocket1_length")
doc.recompute()

chamfer = doc.addObject("PartDesign::Chamfer", "Chamfer")
body.addObject(chamfer)
chamfer.Base = (pocket1, edges_at(pocket1, [(10, 17, -50), (-10, 17, -50)]))
chamfer.setExpression("Size", "Params.chamfer_size")

# Sketch on XZ plane
sketch10 = doc.addObject("Sketcher::SketchObject", "Sketch009")
body.addObject(sketch10)
sketch10.AttachmentSupport = (doc.XZ_Plane, [""])
sketch10.MapMode = "FlatFace"
sketch10.AttachmentOffset = App.Placement(V(0, 0, -2), App.Rotation())
sketch10.addGeometry(Part.Circle(V(0, 0, 0), V(0, 0, 1), 5), False)
sketch10.addConstraint([
    Sketcher.Constraint("Coincident", 0, 3, -1, 1),
    Sketcher.Constraint("Diameter", 0, 10.0),
])
sketch10.setExpression("Constraints[1]", "Params.sketch10_diameter")
pad9 = doc.addObject("PartDesign::Pad", "Pad008")
body.addObject(pad9)
pad9.Profile = sketch10
pad9.setExpression("Length", "Params.pad9_length")
pad9.Reversed = True

doc.recompute()
